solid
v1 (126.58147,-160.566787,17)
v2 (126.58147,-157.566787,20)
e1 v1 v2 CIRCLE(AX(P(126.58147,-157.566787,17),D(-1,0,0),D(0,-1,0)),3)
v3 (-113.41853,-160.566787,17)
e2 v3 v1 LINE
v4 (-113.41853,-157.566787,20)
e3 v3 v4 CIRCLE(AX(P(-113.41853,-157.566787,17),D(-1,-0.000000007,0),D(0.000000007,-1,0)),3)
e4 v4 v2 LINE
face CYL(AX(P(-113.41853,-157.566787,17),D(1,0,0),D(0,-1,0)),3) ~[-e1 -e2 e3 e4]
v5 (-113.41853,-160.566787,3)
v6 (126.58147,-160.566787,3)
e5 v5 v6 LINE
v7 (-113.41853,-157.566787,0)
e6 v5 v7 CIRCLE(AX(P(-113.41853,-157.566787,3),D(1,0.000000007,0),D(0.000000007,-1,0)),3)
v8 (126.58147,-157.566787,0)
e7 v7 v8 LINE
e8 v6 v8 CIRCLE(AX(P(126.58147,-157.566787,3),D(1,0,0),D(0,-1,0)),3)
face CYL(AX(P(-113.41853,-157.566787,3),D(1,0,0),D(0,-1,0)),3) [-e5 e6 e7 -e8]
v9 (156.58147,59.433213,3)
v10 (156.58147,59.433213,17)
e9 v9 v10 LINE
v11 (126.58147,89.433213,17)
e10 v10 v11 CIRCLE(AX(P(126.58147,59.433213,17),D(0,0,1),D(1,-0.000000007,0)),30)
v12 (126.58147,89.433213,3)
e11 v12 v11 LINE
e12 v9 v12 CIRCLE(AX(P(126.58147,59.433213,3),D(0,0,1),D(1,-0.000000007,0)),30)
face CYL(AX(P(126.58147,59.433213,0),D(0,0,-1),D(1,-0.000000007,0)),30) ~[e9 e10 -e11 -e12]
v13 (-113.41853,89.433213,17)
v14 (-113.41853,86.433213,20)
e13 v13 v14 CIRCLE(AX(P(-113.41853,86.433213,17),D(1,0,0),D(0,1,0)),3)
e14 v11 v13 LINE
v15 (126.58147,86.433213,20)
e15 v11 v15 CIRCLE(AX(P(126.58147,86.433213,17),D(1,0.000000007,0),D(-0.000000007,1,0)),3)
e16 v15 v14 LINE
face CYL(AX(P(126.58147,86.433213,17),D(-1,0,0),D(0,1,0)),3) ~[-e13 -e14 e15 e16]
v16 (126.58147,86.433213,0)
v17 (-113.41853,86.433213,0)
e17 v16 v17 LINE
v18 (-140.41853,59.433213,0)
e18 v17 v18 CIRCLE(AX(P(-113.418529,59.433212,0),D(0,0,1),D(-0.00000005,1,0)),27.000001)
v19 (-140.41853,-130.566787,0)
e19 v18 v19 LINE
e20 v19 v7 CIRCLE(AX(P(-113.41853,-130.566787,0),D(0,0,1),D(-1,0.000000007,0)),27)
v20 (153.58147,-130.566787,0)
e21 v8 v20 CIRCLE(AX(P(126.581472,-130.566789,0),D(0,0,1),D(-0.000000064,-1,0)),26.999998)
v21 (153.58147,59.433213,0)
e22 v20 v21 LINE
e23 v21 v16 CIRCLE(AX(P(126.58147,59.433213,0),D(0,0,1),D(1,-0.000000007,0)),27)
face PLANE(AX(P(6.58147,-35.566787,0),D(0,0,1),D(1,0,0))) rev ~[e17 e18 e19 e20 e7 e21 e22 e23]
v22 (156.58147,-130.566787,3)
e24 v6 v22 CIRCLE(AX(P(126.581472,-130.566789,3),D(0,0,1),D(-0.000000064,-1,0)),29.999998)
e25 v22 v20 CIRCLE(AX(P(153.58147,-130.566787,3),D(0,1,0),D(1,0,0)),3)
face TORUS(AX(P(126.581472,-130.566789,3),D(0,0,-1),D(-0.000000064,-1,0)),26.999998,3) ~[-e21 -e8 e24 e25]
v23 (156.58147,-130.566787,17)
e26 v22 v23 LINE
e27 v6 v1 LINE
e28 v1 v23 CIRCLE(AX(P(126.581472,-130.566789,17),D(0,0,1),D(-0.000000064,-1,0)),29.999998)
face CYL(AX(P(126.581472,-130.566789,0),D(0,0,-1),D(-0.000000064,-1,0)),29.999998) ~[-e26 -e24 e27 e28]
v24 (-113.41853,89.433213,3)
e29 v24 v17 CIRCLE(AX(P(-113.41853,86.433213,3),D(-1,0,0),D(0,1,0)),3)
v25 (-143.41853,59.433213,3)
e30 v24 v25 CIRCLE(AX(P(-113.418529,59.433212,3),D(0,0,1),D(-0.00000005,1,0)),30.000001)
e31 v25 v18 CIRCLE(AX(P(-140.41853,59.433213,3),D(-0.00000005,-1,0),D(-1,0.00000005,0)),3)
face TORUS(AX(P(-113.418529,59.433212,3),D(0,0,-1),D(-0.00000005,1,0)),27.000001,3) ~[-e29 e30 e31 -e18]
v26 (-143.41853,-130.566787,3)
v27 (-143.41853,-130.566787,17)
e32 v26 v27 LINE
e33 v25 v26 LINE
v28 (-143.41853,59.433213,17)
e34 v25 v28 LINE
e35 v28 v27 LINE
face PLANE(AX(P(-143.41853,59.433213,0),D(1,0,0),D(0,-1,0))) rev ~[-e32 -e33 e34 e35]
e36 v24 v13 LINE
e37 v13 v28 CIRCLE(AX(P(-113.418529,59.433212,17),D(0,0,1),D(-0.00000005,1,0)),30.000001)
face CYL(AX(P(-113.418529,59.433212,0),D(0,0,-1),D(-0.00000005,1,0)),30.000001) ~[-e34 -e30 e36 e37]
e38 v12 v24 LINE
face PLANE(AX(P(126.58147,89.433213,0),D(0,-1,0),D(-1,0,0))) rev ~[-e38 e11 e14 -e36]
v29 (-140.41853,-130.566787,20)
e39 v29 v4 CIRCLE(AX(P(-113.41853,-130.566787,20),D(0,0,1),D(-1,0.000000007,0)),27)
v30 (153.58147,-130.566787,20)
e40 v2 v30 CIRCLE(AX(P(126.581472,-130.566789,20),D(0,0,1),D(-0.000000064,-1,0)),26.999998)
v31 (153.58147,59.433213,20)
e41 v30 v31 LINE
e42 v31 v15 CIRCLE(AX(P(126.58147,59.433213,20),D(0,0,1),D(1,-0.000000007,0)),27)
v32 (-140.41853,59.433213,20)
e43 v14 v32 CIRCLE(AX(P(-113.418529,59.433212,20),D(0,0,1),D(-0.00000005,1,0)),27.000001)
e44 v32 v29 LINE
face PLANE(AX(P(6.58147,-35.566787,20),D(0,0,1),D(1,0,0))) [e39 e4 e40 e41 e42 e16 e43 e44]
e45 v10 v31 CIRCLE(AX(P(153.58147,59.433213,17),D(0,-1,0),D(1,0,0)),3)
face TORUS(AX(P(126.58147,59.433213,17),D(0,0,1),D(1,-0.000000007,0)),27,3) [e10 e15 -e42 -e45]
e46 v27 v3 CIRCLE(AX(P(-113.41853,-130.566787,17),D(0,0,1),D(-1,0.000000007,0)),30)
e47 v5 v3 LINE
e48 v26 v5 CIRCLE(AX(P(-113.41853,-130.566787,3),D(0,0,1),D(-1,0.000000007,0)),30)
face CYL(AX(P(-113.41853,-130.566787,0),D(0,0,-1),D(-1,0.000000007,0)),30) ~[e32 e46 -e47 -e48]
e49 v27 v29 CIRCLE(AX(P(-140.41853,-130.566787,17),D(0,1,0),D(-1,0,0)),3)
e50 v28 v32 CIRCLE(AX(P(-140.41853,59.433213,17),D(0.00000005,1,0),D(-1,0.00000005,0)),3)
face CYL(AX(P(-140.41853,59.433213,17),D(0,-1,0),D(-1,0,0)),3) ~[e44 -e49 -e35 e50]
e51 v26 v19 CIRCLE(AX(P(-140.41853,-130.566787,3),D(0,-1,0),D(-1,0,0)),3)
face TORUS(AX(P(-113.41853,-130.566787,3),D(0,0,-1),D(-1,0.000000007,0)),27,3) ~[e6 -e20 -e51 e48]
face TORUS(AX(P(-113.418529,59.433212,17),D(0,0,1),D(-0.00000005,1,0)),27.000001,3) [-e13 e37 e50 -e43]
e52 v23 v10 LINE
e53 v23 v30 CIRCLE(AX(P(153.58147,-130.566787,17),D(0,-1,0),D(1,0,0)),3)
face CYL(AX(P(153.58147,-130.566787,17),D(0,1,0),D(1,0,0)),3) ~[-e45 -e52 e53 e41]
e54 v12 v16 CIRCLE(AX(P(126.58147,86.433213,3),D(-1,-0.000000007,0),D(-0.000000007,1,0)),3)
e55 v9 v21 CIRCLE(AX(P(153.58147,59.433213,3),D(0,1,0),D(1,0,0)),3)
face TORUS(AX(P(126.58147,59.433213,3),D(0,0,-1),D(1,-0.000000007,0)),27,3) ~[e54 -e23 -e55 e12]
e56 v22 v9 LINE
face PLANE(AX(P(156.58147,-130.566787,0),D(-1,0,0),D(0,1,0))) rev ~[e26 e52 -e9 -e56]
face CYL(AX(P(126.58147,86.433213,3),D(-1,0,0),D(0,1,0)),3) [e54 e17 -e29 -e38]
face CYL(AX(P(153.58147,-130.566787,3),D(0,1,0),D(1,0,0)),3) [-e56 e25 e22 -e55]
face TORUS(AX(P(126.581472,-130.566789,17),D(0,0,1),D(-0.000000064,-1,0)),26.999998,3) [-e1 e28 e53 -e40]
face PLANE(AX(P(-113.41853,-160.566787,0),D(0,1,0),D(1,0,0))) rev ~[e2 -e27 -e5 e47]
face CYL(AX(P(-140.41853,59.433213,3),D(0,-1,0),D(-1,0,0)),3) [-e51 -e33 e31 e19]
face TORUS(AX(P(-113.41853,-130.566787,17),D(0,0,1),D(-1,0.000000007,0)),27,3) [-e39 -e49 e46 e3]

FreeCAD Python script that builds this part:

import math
import FreeCAD as App
import Part
import Sketcher

V = App.Vector


def edges_at(feature, points):
    """Names of the edges that pass closest to the given points."""
    edges = feature.Shape.Edges
    near = lambda p: min(range(len(edges)), key=lambda i: edges[i].distToShape(Part.Vertex(*p))[0])
    return sorted({f"Edge{near(p) + 1}" for p in points})

doc = App.newDocument("Part")
body = doc.addObject("PartDesign::Body", "Body")

sketch1 = body.newObject("Sketcher::SketchObject", "Sketch")
sketch1.AttachmentSupport = (doc.getObject("XY_Plane"), [""])
sketch1.MapMode = "FlatFace"
sketch1.addGeometry(Part.LineSegment(V(126.58147, 89.433213, 0), V(-113.41853, 89.433213, 0)), False)
sketch1.addGeometry(Part.ArcOfCircle(Part.Circle(V(-113.418529, 59.433212, 0), V(0, 0, 1), 30.000001), math.radians(90.000003), math.radians(179.999997)), False)
sketch1.addGeometry(Part.LineSegment(V(-143.41853, 59.433213, 0), V(-143.41853, -130.566787, 0)), False)
sketch1.addGeometry(Part.ArcOfCircle(Part.Circle(V(-113.41853, -130.566787, 0), V(0, 0, 1), 30), math.radians(180), math.radians(270)), False)
sketch1.addGeometry(Part.LineSegment(V(-113.41853, -160.566787, 0), V(126.58147, -160.566787, 0)), False)
sketch1.addGeometry(Part.ArcOfCircle(Part.Circle(V(126.581472, -130.566789, 0), V(0, 0, 1), 29.999998), math.radians(-90.000004), math.radians(0.000004)), False)
sketch1.addGeometry(Part.LineSegment(V(156.58147, -130.566787, 0), V(156.58147, 59.433213, 0)), False)
sketch1.addGeometry(Part.ArcOfCircle(Part.Circle(V(126.58147, 59.433213, 0), V(0, 0, 1), 30), math.radians(0), math.radians(90)), False)
sketch1.addConstraint(Sketcher.Constraint("Tangent", 0, 2, 1, 1))
sketch1.addConstraint(Sketcher.Constraint("Tangent", 1, 2, 2, 1))
sketch1.addConstraint(Sketcher.Constraint("Tangent", 2, 2, 3, 1))
sketch1.addConstraint(Sketcher.Constraint("Tangent", 3, 2, 4, 1))
sketch1.addConstraint(Sketcher.Constraint("Tangent", 4, 2, 5, 1))
sketch1.addConstraint(Sketcher.Constraint("Tangent", 5, 2, 6, 1))
sketch1.addConstraint(Sketcher.Constraint("Tangent", 6, 2, 7, 1))
sketch1.addConstraint(Sketcher.Constraint("Tangent", 7, 2, 0, 1))
sketch1.addConstraint(Sketcher.Constraint("Horizontal", 0))
sketch1.addConstraint(Sketcher.Constraint("Vertical", 2))
sketch1.addConstraint(Sketcher.Constraint("Horizontal", 4))
sketch1.addConstraint(Sketcher.Constraint("Vertical", 6))
sketch1.addConstraint(Sketcher.Constraint("Equal", 1, 3))
sketch1.addConstraint(Sketcher.Constraint("Equal", 3, 5))
sketch1.addConstraint(Sketcher.Constraint("Equal", 5, 7))
sketch1.addConstraint(Sketcher.Constraint("Radius", 1, 30.000001))
sketch1.addConstraint(Sketcher.Constraint("DistanceX", 0, 2, 0, 1, 240.0))
sketch1.addConstraint(Sketcher.Constraint("DistanceY", 2, 2, 2, 1, 190.0))
sketch1.addConstraint(Sketcher.Constraint("DistanceX", 1, 3, -1, 1, 113.418529))
sketch1.addConstraint(Sketcher.Constraint("DistanceY", -1, 1, 1, 3, 59.433212))
pad1 = body.newObject("PartDesign::Pad", "Pad")
pad1.Profile = sketch1
pad1.Length = 20
doc.recompute()

fillet = body.newObject("PartDesign::Fillet", "Fillet")
fillet.Base = (pad1, edges_at(pad1, [
    (156.581, -35.567, 20),
    (147.795, 80.646, 20),
    (6.581, 89.433, 20),
    (-134.632, 80.646, 20),
    (-143.419, -35.567, 20),
    (-134.632, -151.78, 20),
    (6.581, -160.567, 20),
    (147.795, -151.78, 20),
    (156.581, -35.567, 0),
    (147.795, 80.646, 0),
    (6.581, 89.433, 0),
    (-134.632, 80.646, 0),
    (-143.419, -35.567, 0),
    (-134.632, -151.78, 0),
    (6.581, -160.567, 0),
    (147.795, -151.78, 0),
]))
fillet.Radius = 3

doc.recompute()
